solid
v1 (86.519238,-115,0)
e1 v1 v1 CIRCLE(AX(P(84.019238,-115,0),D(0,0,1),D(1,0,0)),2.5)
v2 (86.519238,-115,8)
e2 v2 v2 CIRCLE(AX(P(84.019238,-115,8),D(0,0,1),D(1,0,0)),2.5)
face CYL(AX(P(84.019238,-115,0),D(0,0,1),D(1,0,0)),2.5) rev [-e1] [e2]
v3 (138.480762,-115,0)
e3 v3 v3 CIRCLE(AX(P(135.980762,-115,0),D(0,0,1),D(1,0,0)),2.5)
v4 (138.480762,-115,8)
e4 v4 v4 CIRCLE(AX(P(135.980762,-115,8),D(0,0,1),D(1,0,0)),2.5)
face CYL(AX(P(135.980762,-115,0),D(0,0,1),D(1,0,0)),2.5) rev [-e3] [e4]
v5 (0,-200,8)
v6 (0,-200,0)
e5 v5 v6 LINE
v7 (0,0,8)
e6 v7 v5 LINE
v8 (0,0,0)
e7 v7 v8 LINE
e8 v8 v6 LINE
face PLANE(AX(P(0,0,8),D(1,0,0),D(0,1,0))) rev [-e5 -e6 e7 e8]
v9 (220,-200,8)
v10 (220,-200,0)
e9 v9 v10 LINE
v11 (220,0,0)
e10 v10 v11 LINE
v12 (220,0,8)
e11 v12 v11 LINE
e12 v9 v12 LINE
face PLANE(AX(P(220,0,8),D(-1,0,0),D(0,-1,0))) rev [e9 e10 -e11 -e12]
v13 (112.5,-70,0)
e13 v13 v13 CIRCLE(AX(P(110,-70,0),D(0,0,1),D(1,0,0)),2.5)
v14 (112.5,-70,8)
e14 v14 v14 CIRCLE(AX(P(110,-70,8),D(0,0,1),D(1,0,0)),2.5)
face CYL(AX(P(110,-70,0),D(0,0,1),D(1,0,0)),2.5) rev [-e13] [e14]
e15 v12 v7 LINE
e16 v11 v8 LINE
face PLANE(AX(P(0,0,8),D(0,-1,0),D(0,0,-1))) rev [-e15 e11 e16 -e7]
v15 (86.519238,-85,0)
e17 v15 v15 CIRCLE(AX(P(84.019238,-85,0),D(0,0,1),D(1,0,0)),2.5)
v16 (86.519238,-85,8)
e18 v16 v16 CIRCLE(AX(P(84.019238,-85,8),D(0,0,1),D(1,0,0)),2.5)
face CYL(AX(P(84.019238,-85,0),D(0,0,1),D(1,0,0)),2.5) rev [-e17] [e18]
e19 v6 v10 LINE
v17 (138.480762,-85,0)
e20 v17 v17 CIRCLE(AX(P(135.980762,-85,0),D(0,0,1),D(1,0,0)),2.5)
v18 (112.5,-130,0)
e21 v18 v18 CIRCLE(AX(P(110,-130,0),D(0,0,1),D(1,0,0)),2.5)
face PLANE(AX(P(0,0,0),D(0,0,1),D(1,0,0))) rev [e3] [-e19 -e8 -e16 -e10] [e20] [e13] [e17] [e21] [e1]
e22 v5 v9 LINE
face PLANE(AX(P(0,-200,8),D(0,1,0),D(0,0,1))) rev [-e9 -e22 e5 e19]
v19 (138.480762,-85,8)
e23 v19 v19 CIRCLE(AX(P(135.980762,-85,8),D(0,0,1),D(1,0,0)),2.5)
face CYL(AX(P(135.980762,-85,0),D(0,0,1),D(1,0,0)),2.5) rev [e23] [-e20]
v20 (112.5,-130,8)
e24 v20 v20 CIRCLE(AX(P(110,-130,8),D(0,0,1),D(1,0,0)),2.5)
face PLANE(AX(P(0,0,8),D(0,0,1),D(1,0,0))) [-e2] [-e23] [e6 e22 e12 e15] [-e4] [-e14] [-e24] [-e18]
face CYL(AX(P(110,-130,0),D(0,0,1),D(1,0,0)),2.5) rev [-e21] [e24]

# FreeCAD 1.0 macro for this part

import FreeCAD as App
import Part
import Sketcher
from FreeCAD import Vector
Q = App.Units.Quantity


def add_polygon(sketch, points):
    """Adds a closed chain of lines whose ends are joined by coincident constraints."""
    first, n = sketch.GeometryCount, len(points)
    for a, b in zip(points, points[1:] + points[:1]):
        sketch.addGeometry(Part.LineSegment(App.Vector(*a, 0), App.Vector(*b, 0)), False)
    for i in range(n):
        sketch.addConstraint(Sketcher.Constraint("Coincident", first + i, 2, first + (i + 1) % n, 1))

doc = App.newDocument("Part")
body = doc.addObject("PartDesign::Body", "Body")

# Sketch on XY plane
sketch1 = body.newObject("Sketcher::SketchObject", "Sketch")
sketch1.AttachmentSupport = (doc.getObject("XY_Plane"), [""])
sketch1.MapMode = "FlatFace"
add_polygon(sketch1, [(0, 0), (0, -200), (220, -200), (220, 0)])  # lines 0-3
sketch1.addConstraint([
    Sketcher.Constraint("Vertical", 0),
    Sketcher.Constraint("Horizontal", 1),
    Sketcher.Constraint("Vertical", 2),
    Sketcher.Constraint("Horizontal", 3),
    Sketcher.Constraint("Coincident", 3, 2, -1, 1),
    Sketcher.Constraint("DistanceX", 1, 1, 1, 2, Q("220 mm")),
    Sketcher.Constraint("DistanceY", 0, 2, 0, 1, Q("200 mm")),
])
pad1 = body.newObject("PartDesign::Pad", "Pad")
pad1.Profile = sketch1
pad1.Length = 8

# Sketch on XY plane
sketch2 = body.newObject("Sketcher::SketchObject", "Sketch001")
sketch2.AttachmentSupport = (doc.getObject("XY_Plane"), [""])
sketch2.MapMode = "FlatFace"
sketch2.AttachmentOffset = App.Placement(Vector(0, 0, 8), App.Rotation())
sketch2.addGeometry([
    Part.Circle(Vector(110, -70, 0), Vector(0, 0, 1), 2.5),  # 0
    Part.Circle(Vector(135.980762, -85, 0), Vector(0, 0, 1), 2.5),  # 1
    Part.Circle(Vector(135.980762, -115, 0), Vector(0, 0, 1), 2.5),  # 2
    Part.Circle(Vector(110, -130, 0), Vector(0, 0, 1), 2.5),  # 3
    Part.Circle(Vector(84.019238, -115, 0), Vector(0, 0, 1), 2.5),  # 4
    Part.Circle(Vector(84.019238, -85, 0), Vector(0, 0, 1), 2.5),  # 5
], False)
sketch2.addConstraint([
    Sketcher.Constraint("Equal", 0, 1),
    Sketcher.Constraint("Equal", 1, 2),
    Sketcher.Constraint("Equal", 2, 3),
    Sketcher.Constraint("Equal", 3, 4),
    Sketcher.Constraint("Equal", 4, 5),
    Sketcher.Constraint("Horizontal", 2, 3, 4, 3),
    Sketcher.Constraint("Horizontal", 1, 3, 5, 3),
    Sketcher.Constraint("Vertical", 1, 3, 2, 3),
    Sketcher.Constraint("Vertical", 0, 3, 3, 3),
    Sketcher.Constraint("Vertical", 4, 3, 5, 3),
    Sketcher.Constraint("Diameter", 0, Q("5 mm")),
    Sketcher.Constraint("DistanceX", -1, 1, 0, 3, Q("110 mm")),
    Sketcher.Constraint("DistanceY", 0, 3, -1, 1, Q("70 mm")),
    Sketcher.Constraint("DistanceY", 1, 3, -1, 1, Q("85 mm")),
    Sketcher.Constraint("DistanceY", 2, 3, -1, 1, Q("115 mm")),
    Sketcher.Constraint("DistanceY", 3, 3, -1, 1, Q("130 mm")),
    Sketcher.Constraint("DistanceX", -1, 1, 1, 3, Q("135.980762 mm")),
    Sketcher.Constraint("DistanceX", -1, 1, 4, 3, Q("84.019238 mm")),
])
pocket1 = body.newObject("PartDesign::Pocket", "Pocket")
pocket1.Profile = sketch2
pocket1.Type = "ThroughAll"

doc.recompute()
